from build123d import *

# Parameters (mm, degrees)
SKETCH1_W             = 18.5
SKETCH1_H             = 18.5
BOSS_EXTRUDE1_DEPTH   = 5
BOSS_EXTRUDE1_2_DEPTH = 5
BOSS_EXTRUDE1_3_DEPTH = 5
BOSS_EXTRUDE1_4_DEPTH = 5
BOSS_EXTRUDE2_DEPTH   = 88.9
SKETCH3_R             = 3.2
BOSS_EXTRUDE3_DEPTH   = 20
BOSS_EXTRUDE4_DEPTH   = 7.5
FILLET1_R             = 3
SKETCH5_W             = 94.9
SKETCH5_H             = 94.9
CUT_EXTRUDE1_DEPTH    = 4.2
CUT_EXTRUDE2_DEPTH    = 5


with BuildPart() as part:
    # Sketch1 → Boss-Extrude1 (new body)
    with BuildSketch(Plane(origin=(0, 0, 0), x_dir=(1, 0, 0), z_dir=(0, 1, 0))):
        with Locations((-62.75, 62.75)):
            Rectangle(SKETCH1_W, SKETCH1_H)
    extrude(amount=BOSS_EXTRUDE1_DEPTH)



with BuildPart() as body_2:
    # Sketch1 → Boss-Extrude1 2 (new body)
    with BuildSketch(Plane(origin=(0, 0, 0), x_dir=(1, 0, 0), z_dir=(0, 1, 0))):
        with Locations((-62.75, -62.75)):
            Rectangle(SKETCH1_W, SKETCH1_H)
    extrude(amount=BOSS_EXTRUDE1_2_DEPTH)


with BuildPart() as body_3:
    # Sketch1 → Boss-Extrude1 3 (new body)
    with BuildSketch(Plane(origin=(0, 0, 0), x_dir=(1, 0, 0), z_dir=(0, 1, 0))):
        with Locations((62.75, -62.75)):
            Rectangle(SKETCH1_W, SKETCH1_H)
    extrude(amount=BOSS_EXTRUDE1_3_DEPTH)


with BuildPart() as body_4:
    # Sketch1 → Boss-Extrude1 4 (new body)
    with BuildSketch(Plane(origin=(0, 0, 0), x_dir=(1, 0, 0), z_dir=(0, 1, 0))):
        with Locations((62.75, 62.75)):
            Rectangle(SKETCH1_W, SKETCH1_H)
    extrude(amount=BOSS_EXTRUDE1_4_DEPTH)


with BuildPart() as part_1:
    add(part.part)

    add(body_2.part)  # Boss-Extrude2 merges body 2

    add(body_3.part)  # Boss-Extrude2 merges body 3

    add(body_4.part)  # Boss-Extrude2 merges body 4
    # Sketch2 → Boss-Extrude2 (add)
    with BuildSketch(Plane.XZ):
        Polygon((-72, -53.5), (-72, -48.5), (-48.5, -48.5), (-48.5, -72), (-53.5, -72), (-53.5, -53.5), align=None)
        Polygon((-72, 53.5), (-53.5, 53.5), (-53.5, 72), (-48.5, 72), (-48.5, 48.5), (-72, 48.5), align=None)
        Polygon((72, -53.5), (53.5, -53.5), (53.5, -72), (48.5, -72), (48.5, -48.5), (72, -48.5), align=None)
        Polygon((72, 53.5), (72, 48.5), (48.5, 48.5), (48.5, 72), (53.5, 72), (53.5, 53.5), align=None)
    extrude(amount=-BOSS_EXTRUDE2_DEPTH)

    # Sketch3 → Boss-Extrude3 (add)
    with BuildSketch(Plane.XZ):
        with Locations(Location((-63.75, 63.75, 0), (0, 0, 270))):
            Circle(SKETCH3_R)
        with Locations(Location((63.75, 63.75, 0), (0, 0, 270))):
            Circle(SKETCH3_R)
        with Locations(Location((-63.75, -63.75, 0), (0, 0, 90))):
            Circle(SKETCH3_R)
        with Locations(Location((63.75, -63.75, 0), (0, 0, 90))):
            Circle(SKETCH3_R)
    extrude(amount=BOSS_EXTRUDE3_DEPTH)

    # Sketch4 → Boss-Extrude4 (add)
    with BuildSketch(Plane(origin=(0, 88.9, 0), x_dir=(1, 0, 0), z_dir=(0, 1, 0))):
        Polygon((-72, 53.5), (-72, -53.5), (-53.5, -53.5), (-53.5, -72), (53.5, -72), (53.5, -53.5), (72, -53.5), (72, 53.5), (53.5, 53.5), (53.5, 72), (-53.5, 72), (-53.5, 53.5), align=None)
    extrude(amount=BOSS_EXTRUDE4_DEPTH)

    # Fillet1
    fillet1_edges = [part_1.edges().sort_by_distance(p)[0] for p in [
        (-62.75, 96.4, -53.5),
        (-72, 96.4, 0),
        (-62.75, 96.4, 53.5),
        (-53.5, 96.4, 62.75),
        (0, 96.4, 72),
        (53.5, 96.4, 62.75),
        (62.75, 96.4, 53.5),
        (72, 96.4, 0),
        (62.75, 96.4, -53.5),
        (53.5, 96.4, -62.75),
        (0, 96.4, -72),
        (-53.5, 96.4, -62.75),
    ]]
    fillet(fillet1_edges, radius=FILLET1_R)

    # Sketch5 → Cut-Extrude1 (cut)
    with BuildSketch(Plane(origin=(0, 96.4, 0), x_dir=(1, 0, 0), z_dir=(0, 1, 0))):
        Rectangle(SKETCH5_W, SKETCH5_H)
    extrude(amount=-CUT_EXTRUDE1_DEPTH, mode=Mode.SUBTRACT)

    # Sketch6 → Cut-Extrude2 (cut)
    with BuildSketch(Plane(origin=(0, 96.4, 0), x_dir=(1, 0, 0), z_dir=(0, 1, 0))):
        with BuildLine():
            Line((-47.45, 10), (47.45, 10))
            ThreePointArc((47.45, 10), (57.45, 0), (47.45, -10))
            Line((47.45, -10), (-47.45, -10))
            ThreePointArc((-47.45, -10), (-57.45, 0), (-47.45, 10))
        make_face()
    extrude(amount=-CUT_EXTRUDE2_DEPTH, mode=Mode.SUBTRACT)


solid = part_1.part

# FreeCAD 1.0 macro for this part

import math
import FreeCAD as App
import Part
import Sketcher
Q = App.Units.Quantity


def edges_at(feature, points):
    """Names of the edges that pass closest to the given points."""
    edges = feature.Shape.Edges
    near = lambda p: min(range(len(edges)), key=lambda i: edges[i].distToShape(Part.Vertex(*p))[0])
    return sorted({f"Edge{near(p) + 1}" for p in points})


def add_polygon(sketch, points):
    """Adds a closed chain of lines whose ends are joined by coincident constraints."""
    first, n = sketch.GeometryCount, len(points)
    for a, b in zip(points, points[1:] + points[:1]):
        sketch.addGeometry(Part.LineSegment(App.Vector(*a, 0), App.Vector(*b, 0)), False)
    for i in range(n):
        sketch.addConstraint(Sketcher.Constraint("Coincident", first + i, 2, first + (i + 1) % n, 1))

doc = App.newDocument("Part")
body = doc.addObject("PartDesign::Body", "Body")

sketch1 = body.newObject("Sketcher::SketchObject", "Sketch")
sketch1.AttachmentSupport = (doc.getObject("XZ_Plane"), [""])
sketch1.MapMode = "FlatFace"
add_polygon(sketch1, [(-72, -72), (-72, -53.5), (-53.5, -53.5), (-53.5, -72)])
sketch1.addConstraint(Sketcher.Constraint("Vertical", 0))
sketch1.addConstraint(Sketcher.Constraint("Horizontal", 1))
sketch1.addConstraint(Sketcher.Constraint("Vertical", 2))
sketch1.addConstraint(Sketcher.Constraint("Horizontal", 3))
sketch1.addConstraint(Sketcher.Constraint("Equal", 3, 0))
sketch1.addConstraint(Sketcher.Constraint("DistanceX", 1, 1, 1, 2, Q("18.5 mm")))
sketch1.addConstraint(Sketcher.Constraint("DistanceX", 0, 2, -1, 1, Q("72 mm")))
sketch1.addConstraint(Sketcher.Constraint("DistanceY", 2, 2, -1, 1, Q("72 mm")))
pad1 = body.newObject("PartDesign::Pad", "Pad")
pad1.Profile = sketch1
pad1.Length = 5
pad1.Reversed = True
body2 = doc.addObject("PartDesign::Body", "Body001")

sketch2 = body2.newObject("Sketcher::SketchObject", "Sketch001")
sketch2.AttachmentSupport = (doc.getObject("XZ_Plane001"), [""])
sketch2.MapMode = "FlatFace"
add_polygon(sketch2, [(-72, 53.5), (-72, 72), (-53.5, 72), (-53.5, 53.5)])
sketch2.addConstraint(Sketcher.Constraint("Vertical", 0))
sketch2.addConstraint(Sketcher.Constraint("Horizontal", 1))
sketch2.addConstraint(Sketcher.Constraint("Vertical", 2))
sketch2.addConstraint(Sketcher.Constraint("Horizontal", 3))
sketch2.addConstraint(Sketcher.Constraint("Equal", 3, 0))
sketch2.addConstraint(Sketcher.Constraint("DistanceX", 1, 1, 1, 2, Q("18.5 mm")))
sketch2.addConstraint(Sketcher.Constraint("DistanceX", 0, 2, -1, 1, Q("72 mm")))
sketch2.addConstraint(Sketcher.Constraint("DistanceY", -1, 1, 0, 2, Q("72 mm")))
pad2 = body2.newObject("PartDesign::Pad", "Pad001")
pad2.Profile = sketch2
pad2.Length = 5
pad2.Reversed = True
body3 = doc.addObject("PartDesign::Body", "Body002")

sketch3 = body3.newObject("Sketcher::SketchObject", "Sketch002")
sketch3.AttachmentSupport = (doc.getObject("XZ_Plane002"), [""])
sketch3.MapMode = "FlatFace"
add_polygon(sketch3, [(53.5, 53.5), (53.5, 72), (72, 72), (72, 53.5)])
sketch3.addConstraint(Sketcher.Constraint("Vertical", 0))
sketch3.addConstraint(Sketcher.Constraint("Horizontal", 1))
sketch3.addConstraint(Sketcher.Constraint("Vertical", 2))
sketch3.addConstraint(Sketcher.Constraint("Horizontal", 3))
sketch3.addConstraint(Sketcher.Constraint("Equal", 3, 0))
sketch3.addConstraint(Sketcher.Constraint("DistanceX", 1, 1, 1, 2, Q("18.5 mm")))
sketch3.addConstraint(Sketcher.Constraint("DistanceY", -1, 1, 0, 2, Q("72 mm")))
sketch3.addConstraint(Sketcher.Constraint("DistanceX", -1, 1, 1, 2, Q("72 mm")))
pad3 = body3.newObject("PartDesign::Pad", "Pad002")
pad3.Profile = sketch3
pad3.Length = 5
pad3.Reversed = True
body4 = doc.addObject("PartDesign::Body", "Body003")

sketch4 = body4.newObject("Sketcher::SketchObject", "Sketch003")
sketch4.AttachmentSupport = (doc.getObject("XZ_Plane003"), [""])
sketch4.MapMode = "FlatFace"
add_polygon(sketch4, [(53.5, -72), (53.5, -53.5), (72, -53.5), (72, -72)])
sketch4.addConstraint(Sketcher.Constraint("Vertical", 0))
sketch4.addConstraint(Sketcher.Constraint("Horizontal", 1))
sketch4.addConstraint(Sketcher.Constraint("Vertical", 2))
sketch4.addConstraint(Sketcher.Constraint("Horizontal", 3))
sketch4.addConstraint(Sketcher.Constraint("Equal", 3, 0))
sketch4.addConstraint(Sketcher.Constraint("DistanceX", 1, 1, 1, 2, Q("18.5 mm")))
sketch4.addConstraint(Sketcher.Constraint("DistanceX", -1, 1, 1, 2, Q("72 mm")))
sketch4.addConstraint(Sketcher.Constraint("DistanceY", 2, 2, -1, 1, Q("72 mm")))
pad4 = body4.newObject("PartDesign::Pad", "Pad003")
pad4.Profile = sketch4
pad4.Length = 5
pad4.Reversed = True
body.AllowCompound = True
doc.recompute()

boolean = body.newObject("PartDesign::Boolean", "Boolean")
boolean.Type = "Fuse"
boolean.addObjects([body2])
doc.recompute()

boolean2 = body.newObject("PartDesign::Boolean", "Boolean001")
boolean2.Type = "Fuse"
boolean2.addObjects([body3])
doc.recompute()

boolean3 = body.newObject("PartDesign::Boolean", "Boolean002")
boolean3.Type = "Fuse"
boolean3.addObjects([body4])

sketch5 = body.newObject("Sketcher::SketchObject", "Sketch004")
sketch5.AttachmentSupport = (doc.getObject("XZ_Plane"), [""])
sketch5.MapMode = "FlatFace"
add_polygon(sketch5, [(-72, -48.5), (-72, -53.5), (-53.5, -53.5), (-53.5, -72), (-48.5, -72), (-48.5, -48.5)])
add_polygon(sketch5, [(-53.5, 53.5), (-72, 53.5), (-72, 48.5), (-48.5, 48.5), (-48.5, 72), (-53.5, 72)])
add_polygon(sketch5, [(53.5, -53.5), (72, -53.5), (72, -48.5), (48.5, -48.5), (48.5, -72), (53.5, -72)])
add_polygon(sketch5, [(72, 48.5), (72, 53.5), (53.5, 53.5), (53.5, 72), (48.5, 72), (48.5, 48.5)])
sketch5.addConstraint(Sketcher.Constraint("Vertical", 0))
sketch5.addConstraint(Sketcher.Constraint("Horizontal", 1))
sketch5.addConstraint(Sketcher.Constraint("Vertical", 2))
sketch5.addConstraint(Sketcher.Constraint("Horizontal", 3))
sketch5.addConstraint(Sketcher.Constraint("Vertical", 4))
sketch5.addConstraint(Sketcher.Constraint("Horizontal", 5))
sketch5.addConstraint(Sketcher.Constraint("Horizontal", 6))
sketch5.addConstraint(Sketcher.Constraint("Vertical", 7))
sketch5.addConstraint(Sketcher.Constraint("Horizontal", 8))
sketch5.addConstraint(Sketcher.Constraint("Vertical", 9))
sketch5.addConstraint(Sketcher.Constraint("Horizontal", 10))
sketch5.addConstraint(Sketcher.Constraint("Vertical", 11))
sketch5.addConstraint(Sketcher.Constraint("Horizontal", 12))
sketch5.addConstraint(Sketcher.Constraint("Vertical", 13))
sketch5.addConstraint(Sketcher.Constraint("Horizontal", 14))
sketch5.addConstraint(Sketcher.Constraint("Vertical", 15))
sketch5.addConstraint(Sketcher.Constraint("Horizontal", 16))
sketch5.addConstraint(Sketcher.Constraint("Vertical", 17))
sketch5.addConstraint(Sketcher.Constraint("Vertical", 18))
sketch5.addConstraint(Sketcher.Constraint("Horizontal", 19))
sketch5.addConstraint(Sketcher.Constraint("Vertical", 20))
sketch5.addConstraint(Sketcher.Constraint("Horizontal", 21))
sketch5.addConstraint(Sketcher.Constraint("Vertical", 22))
sketch5.addConstraint(Sketcher.Constraint("Horizontal", 23))
sketch5.addConstraint(Sketcher.Constraint("Symmetric", 6, 2, 12, 2, -1, 1))
sketch5.addConstraint(Sketcher.Constraint("Symmetric", 8, 2, 14, 2, -1, 1))
sketch5.addConstraint(Sketcher.Constraint("Symmetric", 10, 2, 16, 2, -1, 1))
sketch5.addConstraint(Sketcher.Constraint("Symmetric", 0, 2, 18, 2, -1, 1))
sketch5.addConstraint(Sketcher.Constraint("Symmetric", 2, 2, 20, 2, -1, 1))
sketch5.addConstraint(Sketcher.Constraint("Symmetric", 4, 2, 22, 2, -1, 1))
sketch5.addConstraint(Sketcher.Constraint("Symmetric", 0, 2, 12, 2, -2))
sketch5.addConstraint(Sketcher.Constraint("Symmetric", 4, 2, 14, 2, -2))
sketch5.addConstraint(Sketcher.Constraint("Symmetric", 2, 2, 16, 2, -2))
sketch5.addConstraint(Sketcher.Constraint("Equal", 21, 0))
sketch5.addConstraint(Sketcher.Constraint("Equal", 19, 2))
sketch5.addConstraint(Sketcher.Constraint("DistanceX", 3, 1, 3, 2, Q("5 mm")))
sketch5.addConstraint(Sketcher.Constraint("DistanceX", 1, 1, 1, 2, Q("18.5 mm")))
sketch5.addConstraint(Sketcher.Constraint("DistanceX", 0, 2, -1, 1, Q("72 mm")))
sketch5.addConstraint(Sketcher.Constraint("DistanceY", 2, 2, -1, 1, Q("72 mm")))
pad5 = body.newObject("PartDesign::Pad", "Pad004")
pad5.Profile = sketch5
pad5.Length = 88.9
pad5.Reversed = True

sketch6 = body.newObject("Sketcher::SketchObject", "Sketch005")
sketch6.AttachmentSupport = (doc.getObject("XZ_Plane"), [""])
sketch6.MapMode = "FlatFace"
sketch6.addGeometry(Part.Circle(App.Vector(-63.75, 63.75, 0), App.Vector(0, 0, 1), 3.2), False)
sketch6.addGeometry(Part.Circle(App.Vector(63.75, 63.75, 0), App.Vector(0, 0, 1), 3.2), False)
sketch6.addGeometry(Part.Circle(App.Vector(-63.75, -63.75, 0), App.Vector(0, 0, 1), 3.2), False)
sketch6.addGeometry(Part.Circle(App.Vector(63.75, -63.75, 0), App.Vector(0, 0, 1), 3.2), False)
sketch6.addConstraint(Sketcher.Constraint("Equal", 0, 1))
sketch6.addConstraint(Sketcher.Constraint("Equal", 1, 2))
sketch6.addConstraint(Sketcher.Constraint("Equal", 2, 3))
sketch6.addConstraint(Sketcher.Constraint("Symmetric", 1, 3, 2, 3, -1, 1))
sketch6.addConstraint(Sketcher.Constraint("Symmetric", 0, 3, 3, 3, -1, 1))
sketch6.addConstraint(Sketcher.Constraint("Symmetric", 0, 3, 1, 3, -2))
sketch6.addConstraint(Sketcher.Constraint("Diameter", 0, Q("6.4 mm")))
sketch6.addConstraint(Sketcher.Constraint("DistanceX", 0, 3, 1, 3, Q("127.5 mm")))
sketch6.addConstraint(Sketcher.Constraint("DistanceY", 2, 3, 0, 3, Q("127.5 mm")))
pad6 = body.newObject("PartDesign::Pad", "Pad005")
pad6.Profile = sketch6
pad6.Length = 20

sketch7 = body.newObject("Sketcher::SketchObject", "Sketch006")
sketch7.AttachmentSupport = (doc.getObject("XZ_Plane"), [""])
sketch7.MapMode = "FlatFace"
sketch7.AttachmentOffset = App.Placement(App.Vector(0, 0, -88.9), App.Rotation())
add_polygon(sketch7, [(-72, -53.5), (-72, 53.5), (-53.5, 53.5), (-53.5, 72), (53.5, 72), (53.5, 53.5), (72, 53.5), (72, -53.5), (53.5, -53.5), (53.5, -72), (-53.5, -72), (-53.5, -53.5)])
sketch7.addConstraint(Sketcher.Constraint("Vertical", 0))
sketch7.addConstraint(Sketcher.Constraint("Horizontal", 1))
sketch7.addConstraint(Sketcher.Constraint("Vertical", 2))
sketch7.addConstraint(Sketcher.Constraint("Horizontal", 3))
sketch7.addConstraint(Sketcher.Constraint("Vertical", 4))
sketch7.addConstraint(Sketcher.Constraint("Horizontal", 5))
sketch7.addConstraint(Sketcher.Constraint("Vertical", 6))
sketch7.addConstraint(Sketcher.Constraint("Horizontal", 7))
sketch7.addConstraint(Sketcher.Constraint("Vertical", 8))
sketch7.addConstraint(Sketcher.Constraint("Horizontal", 9))
sketch7.addConstraint(Sketcher.Constraint("Vertical", 10))
sketch7.addConstraint(Sketcher.Constraint("Horizontal", 11))
sketch7.addConstraint(Sketcher.Constraint("Symmetric", 0, 2, 6, 2, -1, 1))
sketch7.addConstraint(Sketcher.Constraint("Symmetric", 2, 2, 8, 2, -1, 1))
sketch7.addConstraint(Sketcher.Constraint("Symmetric", 4, 2, 10, 2, -1, 1))
sketch7.addConstraint(Sketcher.Constraint("Symmetric", 1, 2, 4, 2, -2))
sketch7.addConstraint(Sketcher.Constraint("Equal", 9, 0))
sketch7.addConstraint(Sketcher.Constraint("Equal", 11, 2))
sketch7.addConstraint(Sketcher.Constraint("DistanceX", 3, 1, 3, 2, Q("107 mm")))
sketch7.addConstraint(Sketcher.Constraint("DistanceX", 1, 1, 1, 2, Q("18.5 mm")))
pad7 = body.newObject("PartDesign::Pad", "Pad006")
pad7.Profile = sketch7
pad7.Length = 7.5
pad7.Reversed = True
doc.recompute()

fillet = body.newObject("PartDesign::Fillet", "Fillet")
fillet.Base = (pad7, edges_at(pad7, [
    (-62.75, 96.4, -53.5),
    (-72, 96.4, 0),
    (-62.75, 96.4, 53.5),
    (-53.5, 96.4, 62.75),
    (0, 96.4, 72),
    (53.5, 96.4, 62.75),
    (62.75, 96.4, 53.5),
    (72, 96.4, 0),
    (62.75, 96.4, -53.5),
    (53.5, 96.4, -62.75),
    (0, 96.4, -72),
    (-53.5, 96.4, -62.75),
]))
fillet.Radius = 3

sketch8 = body.newObject("Sketcher::SketchObject", "Sketch007")
sketch8.AttachmentSupport = (doc.getObject("XZ_Plane"), [""])
sketch8.MapMode = "FlatFace"
sketch8.AttachmentOffset = App.Placement(App.Vector(0, 0, -96.4), App.Rotation())
add_polygon(sketch8, [(-47.45, -47.45), (-47.45, 47.45), (47.45, 47.45), (47.45, -47.45)])
sketch8.addConstraint(Sketcher.Constraint("Vertical", 0))
sketch8.addConstraint(Sketcher.Constraint("Horizontal", 1))
sketch8.addConstraint(Sketcher.Constraint("Vertical", 2))
sketch8.addConstraint(Sketcher.Constraint("Horizontal", 3))
sketch8.addConstraint(Sketcher.Constraint("Symmetric", 0, 2, 2, 2, -1, 1))
sketch8.addConstraint(Sketcher.Constraint("Equal", 3, 0))
sketch8.addConstraint(Sketcher.Constraint("DistanceX", 1, 1, 1, 2, Q("94.9 mm")))
pocket1 = body.newObject("PartDesign::Pocket", "Pocket")
pocket1.Profile = sketch8
pocket1.Length = 4.2
pocket1.Reversed = True

sketch9 = body.newObject("Sketcher::SketchObject", "Sketch008")
sketch9.AttachmentSupport = (doc.getObject("XZ_Plane"), [""])
sketch9.MapMode = "FlatFace"
sketch9.AttachmentOffset = App.Placement(App.Vector(0, 0, -96.4), App.Rotation())
sketch9.addGeometry(Part.LineSegment(App.Vector(47.45, -10, 0), App.Vector(-47.45, -10, 0)), False)
sketch9.addGeometry(Part.ArcOfCircle(Part.Circle(App.Vector(-47.45, 0, 0), App.Vector(0, 0, 1), 10), math.radians(90), math.radians(270)), False)
sketch9.addGeometry(Part.LineSegment(App.Vector(-47.45, 10, 0), App.Vector(47.45, 10, 0)), False)
sketch9.addGeometry(Part.ArcOfCircle(Part.Circle(App.Vector(47.45, 0, 0), App.Vector(0, 0, 1), 10), math.radians(-90), math.radians(90)), False)
sketch9.addConstraint(Sketcher.Constraint("Tangent", 0, 2, 1, 2))
sketch9.addConstraint(Sketcher.Constraint("Tangent", 1, 1, 2, 1))
sketch9.addConstraint(Sketcher.Constraint("Tangent", 2, 2, 3, 2))
sketch9.addConstraint(Sketcher.Constraint("Tangent", 3, 1, 0, 1))
sketch9.addConstraint(Sketcher.Constraint("Horizontal", 0))
sketch9.addConstraint(Sketcher.Constraint("Horizontal", 2))
sketch9.addConstraint(Sketcher.Constraint("Symmetric", 1, 3, 3, 3, -1, 1))
sketch9.addConstraint(Sketcher.Constraint("Radius", 1, Q("10 mm")))
sketch9.addConstraint(Sketcher.Constraint("DistanceX", 0, 2, 0, 1, Q("94.9 mm")))
pocket2 = body.newObject("PartDesign::Pocket", "Pocket001")
pocket2.Profile = sketch9
pocket2.Length = 5
pocket2.Reversed = True

doc.recompute()
